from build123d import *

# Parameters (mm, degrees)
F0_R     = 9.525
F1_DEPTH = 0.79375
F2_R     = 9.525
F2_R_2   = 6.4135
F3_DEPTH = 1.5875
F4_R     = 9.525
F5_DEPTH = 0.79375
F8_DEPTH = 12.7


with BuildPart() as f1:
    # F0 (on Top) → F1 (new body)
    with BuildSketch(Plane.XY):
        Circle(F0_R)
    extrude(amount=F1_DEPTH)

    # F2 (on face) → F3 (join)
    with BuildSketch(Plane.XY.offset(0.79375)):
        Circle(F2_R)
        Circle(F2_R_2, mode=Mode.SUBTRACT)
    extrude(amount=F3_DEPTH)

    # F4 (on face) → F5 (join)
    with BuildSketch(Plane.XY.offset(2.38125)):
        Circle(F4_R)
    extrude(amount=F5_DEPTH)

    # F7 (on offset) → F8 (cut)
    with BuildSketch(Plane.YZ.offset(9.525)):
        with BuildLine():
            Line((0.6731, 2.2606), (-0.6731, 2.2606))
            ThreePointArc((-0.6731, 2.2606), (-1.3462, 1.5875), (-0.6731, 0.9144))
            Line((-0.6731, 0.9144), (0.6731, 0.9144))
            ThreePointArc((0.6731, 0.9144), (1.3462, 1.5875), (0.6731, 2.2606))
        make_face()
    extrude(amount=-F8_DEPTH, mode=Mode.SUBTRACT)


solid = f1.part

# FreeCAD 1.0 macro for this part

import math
import FreeCAD as App
import Part
import Sketcher
from FreeCAD import Vector
Q = App.Units.Quantity

doc = App.newDocument("Part")
body = doc.addObject("PartDesign::Body", "Body")

# Sketch on XY plane
sketch1 = body.newObject("Sketcher::SketchObject", "Sketch")
sketch1.AttachmentSupport = (doc.getObject("XY_Plane"), [""])
sketch1.MapMode = "FlatFace"
sketch1.addGeometry(Part.Circle(Vector(0, 0, 0), Vector(0, 0, 1), 9.525), False)
sketch1.addConstraint([
    Sketcher.Constraint("Coincident", 0, 3, -1, 1),
    Sketcher.Constraint("Diameter", 0, Q("0.75 in")),
])
pad1 = body.newObject("PartDesign::Pad", "Pad")
pad1.Profile = sketch1
pad1.Length = Q("0.03125 in")

# Sketch on XY plane
sketch2 = body.newObject("Sketcher::SketchObject", "Sketch001")
sketch2.AttachmentSupport = (doc.getObject("XY_Plane"), [""])
sketch2.MapMode = "FlatFace"
sketch2.AttachmentOffset = App.Placement(Vector(0, 0, 0.03125 * 25.4), App.Rotation())
sketch2.addGeometry([
    Part.Circle(Vector(0, 0, 0), Vector(0, 0, 1), 9.525),
    Part.Circle(Vector(0, 0, 0), Vector(0, 0, 1), 6.4135),
], False)
sketch2.addConstraint([
    Sketcher.Constraint("Coincident", 0, 3, -1, 1),
    Sketcher.Constraint("Coincident", 1, 3, -1, 1),
    Sketcher.Constraint("Diameter", 0, Q("0.75 in")),
    Sketcher.Constraint("Diameter", 1, Q("0.505 in")),
])
pad2 = body.newObject("PartDesign::Pad", "Pad001")
pad2.Profile = sketch2
pad2.Length = Q("0.0625 in")

# Sketch on XY plane
sketch3 = body.newObject("Sketcher::SketchObject", "Sketch002")
sketch3.AttachmentSupport = (doc.getObject("XY_Plane"), [""])
sketch3.MapMode = "FlatFace"
sketch3.AttachmentOffset = App.Placement(Vector(0, 0, 0.09375 * 25.4), App.Rotation())
sketch3.addGeometry(Part.Circle(Vector(0, 0, 0), Vector(0, 0, 1), 9.525), False)
sketch3.addConstraint([
    Sketcher.Constraint("Coincident", 0, 3, -1, 1),
    Sketcher.Constraint("Diameter", 0, Q("0.75 in")),
])
pad3 = body.newObject("PartDesign::Pad", "Pad002")
pad3.Profile = sketch3
pad3.Length = Q("0.03125 in")

# Sketch on YZ plane
sketch4 = body.newObject("Sketcher::SketchObject", "Sketch003")
sketch4.AttachmentSupport = (doc.getObject("YZ_Plane"), [""])
sketch4.MapMode = "FlatFace"
sketch4.AttachmentOffset = App.Placement(Vector(0, 0, 0.375 * 25.4), App.Rotation())
sketch4.addGeometry([
    Part.LineSegment(Vector(0.6731, 2.2606, 0), Vector(-0.6731, 2.2606, 0)),
    Part.ArcOfCircle(Part.Circle(Vector(-0.6731, 1.5875, 0), Vector(0, 0, 1), 0.6731), math.radians(90), math.radians(270)),
    Part.LineSegment(Vector(-0.6731, 0.9144, 0), Vector(0.6731, 0.9144, 0)),
    Part.ArcOfCircle(Part.Circle(Vector(0.6731, 1.5875, 0), Vector(0, 0, 1), 0.6731), math.radians(-90), math.radians(90)),
], False)
sketch4.addConstraint([
    Sketcher.Constraint("Tangent", 0, 2, 1, 1),
    Sketcher.Constraint("Tangent", 1, 2, 2, 1),
    Sketcher.Constraint("Tangent", 2, 2, 3, 1),
    Sketcher.Constraint("Tangent", 3, 2, 0, 1),
    Sketcher.Constraint("Horizontal", 0),
    Sketcher.Constraint("Horizontal", 2),
    Sketcher.Constraint("Radius", 1, Q("0.0265 in")),
    Sketcher.Constraint("DistanceX", 0, 2, 0, 1, Q("0.053 in")),
    Sketcher.Constraint("DistanceY", -1, 1, 1, 3, Q("0.0625 in")),
    Sketcher.Constraint("DistanceX", 1, 3, -1, 1, Q("0.0265 in")),
])
pocket1 = body.newObject("PartDesign::Pocket", "Pocket")
pocket1.Profile = sketch4
pocket1.Length = Q("0.5 in")

doc.recompute()
